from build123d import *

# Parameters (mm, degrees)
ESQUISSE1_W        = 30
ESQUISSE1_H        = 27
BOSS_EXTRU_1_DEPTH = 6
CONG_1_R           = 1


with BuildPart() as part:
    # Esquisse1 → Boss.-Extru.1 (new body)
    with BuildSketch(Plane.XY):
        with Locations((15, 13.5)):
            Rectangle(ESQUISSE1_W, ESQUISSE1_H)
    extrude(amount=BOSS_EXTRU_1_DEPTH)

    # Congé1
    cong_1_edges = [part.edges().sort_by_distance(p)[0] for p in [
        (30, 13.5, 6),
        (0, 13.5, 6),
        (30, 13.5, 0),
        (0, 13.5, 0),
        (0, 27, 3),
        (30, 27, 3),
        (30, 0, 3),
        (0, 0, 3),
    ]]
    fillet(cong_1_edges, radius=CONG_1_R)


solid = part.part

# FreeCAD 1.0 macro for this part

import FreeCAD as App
import Part
import Sketcher
from FreeCAD import Vector


def edges_at(feature, points):
    """Names of the edges that pass closest to the given points."""
    edges = feature.Shape.Edges
    near = lambda p: min(range(len(edges)), key=lambda i: edges[i].distToShape(Part.Vertex(*p))[0])
    return sorted({f"Edge{near(p) + 1}" for p in points})


def add_polygon(sketch, points):
    """Adds a closed chain of lines whose ends are joined by coincident constraints."""
    first, n = sketch.GeometryCount, len(points)
    for a, b in zip(points, points[1:] + points[:1]):
        sketch.addGeometry(Part.LineSegment(App.Vector(*a, 0), App.Vector(*b, 0)), False)
    for i in range(n):
        sketch.addConstraint(Sketcher.Constraint("Coincident", first + i, 2, first + (i + 1) % n, 1))

doc = App.newDocument("Part")
body = doc.addObject("PartDesign::Body", "Body")

# Sketch on XY plane
sketch1 = body.newObject("Sketcher::SketchObject", "Sketch")
sketch1.AttachmentSupport = (doc.getObject("XY_Plane"), [""])
sketch1.MapMode = "FlatFace"
add_polygon(sketch1, [(0, 27), (0, 0), (30, 0), (30, 27)])  # lines 0-3
sketch1.addConstraint(Sketcher.Constraint("Vertical", 0))
sketch1.addConstraint(Sketcher.Constraint("Horizontal", 1))
sketch1.addConstraint(Sketcher.Constraint("Vertical", 2))
sketch1.addConstraint(Sketcher.Constraint("Horizontal", 3))
sketch1.addConstraint(Sketcher.Constraint("Coincident", 0, 2, -1, 1))
sketch1.addConstraint(Sketcher.Constraint("DistanceX", 1, 1, 1, 2, 30.0))
sketch1.addConstraint(Sketcher.Constraint("DistanceY", 0, 2, 0, 1, 27.0))
pad1 = body.newObject("PartDesign::Pad", "Pad")
pad1.Profile = sketch1
pad1.Length = 6
doc.recompute()

fillet = body.newObject("PartDesign::Fillet", "Fillet")
fillet.Base = (pad1, edges_at(pad1, [
    (30, 13.5, 6),
    (0, 13.5, 6),
    (30, 13.5, 0),
    (0, 13.5, 0),
    (0, 27, 3),
    (30, 27, 3),
    (30, 0, 3),
    (0, 0, 3),
]))
fillet.Radius = 1

doc.recompute()
